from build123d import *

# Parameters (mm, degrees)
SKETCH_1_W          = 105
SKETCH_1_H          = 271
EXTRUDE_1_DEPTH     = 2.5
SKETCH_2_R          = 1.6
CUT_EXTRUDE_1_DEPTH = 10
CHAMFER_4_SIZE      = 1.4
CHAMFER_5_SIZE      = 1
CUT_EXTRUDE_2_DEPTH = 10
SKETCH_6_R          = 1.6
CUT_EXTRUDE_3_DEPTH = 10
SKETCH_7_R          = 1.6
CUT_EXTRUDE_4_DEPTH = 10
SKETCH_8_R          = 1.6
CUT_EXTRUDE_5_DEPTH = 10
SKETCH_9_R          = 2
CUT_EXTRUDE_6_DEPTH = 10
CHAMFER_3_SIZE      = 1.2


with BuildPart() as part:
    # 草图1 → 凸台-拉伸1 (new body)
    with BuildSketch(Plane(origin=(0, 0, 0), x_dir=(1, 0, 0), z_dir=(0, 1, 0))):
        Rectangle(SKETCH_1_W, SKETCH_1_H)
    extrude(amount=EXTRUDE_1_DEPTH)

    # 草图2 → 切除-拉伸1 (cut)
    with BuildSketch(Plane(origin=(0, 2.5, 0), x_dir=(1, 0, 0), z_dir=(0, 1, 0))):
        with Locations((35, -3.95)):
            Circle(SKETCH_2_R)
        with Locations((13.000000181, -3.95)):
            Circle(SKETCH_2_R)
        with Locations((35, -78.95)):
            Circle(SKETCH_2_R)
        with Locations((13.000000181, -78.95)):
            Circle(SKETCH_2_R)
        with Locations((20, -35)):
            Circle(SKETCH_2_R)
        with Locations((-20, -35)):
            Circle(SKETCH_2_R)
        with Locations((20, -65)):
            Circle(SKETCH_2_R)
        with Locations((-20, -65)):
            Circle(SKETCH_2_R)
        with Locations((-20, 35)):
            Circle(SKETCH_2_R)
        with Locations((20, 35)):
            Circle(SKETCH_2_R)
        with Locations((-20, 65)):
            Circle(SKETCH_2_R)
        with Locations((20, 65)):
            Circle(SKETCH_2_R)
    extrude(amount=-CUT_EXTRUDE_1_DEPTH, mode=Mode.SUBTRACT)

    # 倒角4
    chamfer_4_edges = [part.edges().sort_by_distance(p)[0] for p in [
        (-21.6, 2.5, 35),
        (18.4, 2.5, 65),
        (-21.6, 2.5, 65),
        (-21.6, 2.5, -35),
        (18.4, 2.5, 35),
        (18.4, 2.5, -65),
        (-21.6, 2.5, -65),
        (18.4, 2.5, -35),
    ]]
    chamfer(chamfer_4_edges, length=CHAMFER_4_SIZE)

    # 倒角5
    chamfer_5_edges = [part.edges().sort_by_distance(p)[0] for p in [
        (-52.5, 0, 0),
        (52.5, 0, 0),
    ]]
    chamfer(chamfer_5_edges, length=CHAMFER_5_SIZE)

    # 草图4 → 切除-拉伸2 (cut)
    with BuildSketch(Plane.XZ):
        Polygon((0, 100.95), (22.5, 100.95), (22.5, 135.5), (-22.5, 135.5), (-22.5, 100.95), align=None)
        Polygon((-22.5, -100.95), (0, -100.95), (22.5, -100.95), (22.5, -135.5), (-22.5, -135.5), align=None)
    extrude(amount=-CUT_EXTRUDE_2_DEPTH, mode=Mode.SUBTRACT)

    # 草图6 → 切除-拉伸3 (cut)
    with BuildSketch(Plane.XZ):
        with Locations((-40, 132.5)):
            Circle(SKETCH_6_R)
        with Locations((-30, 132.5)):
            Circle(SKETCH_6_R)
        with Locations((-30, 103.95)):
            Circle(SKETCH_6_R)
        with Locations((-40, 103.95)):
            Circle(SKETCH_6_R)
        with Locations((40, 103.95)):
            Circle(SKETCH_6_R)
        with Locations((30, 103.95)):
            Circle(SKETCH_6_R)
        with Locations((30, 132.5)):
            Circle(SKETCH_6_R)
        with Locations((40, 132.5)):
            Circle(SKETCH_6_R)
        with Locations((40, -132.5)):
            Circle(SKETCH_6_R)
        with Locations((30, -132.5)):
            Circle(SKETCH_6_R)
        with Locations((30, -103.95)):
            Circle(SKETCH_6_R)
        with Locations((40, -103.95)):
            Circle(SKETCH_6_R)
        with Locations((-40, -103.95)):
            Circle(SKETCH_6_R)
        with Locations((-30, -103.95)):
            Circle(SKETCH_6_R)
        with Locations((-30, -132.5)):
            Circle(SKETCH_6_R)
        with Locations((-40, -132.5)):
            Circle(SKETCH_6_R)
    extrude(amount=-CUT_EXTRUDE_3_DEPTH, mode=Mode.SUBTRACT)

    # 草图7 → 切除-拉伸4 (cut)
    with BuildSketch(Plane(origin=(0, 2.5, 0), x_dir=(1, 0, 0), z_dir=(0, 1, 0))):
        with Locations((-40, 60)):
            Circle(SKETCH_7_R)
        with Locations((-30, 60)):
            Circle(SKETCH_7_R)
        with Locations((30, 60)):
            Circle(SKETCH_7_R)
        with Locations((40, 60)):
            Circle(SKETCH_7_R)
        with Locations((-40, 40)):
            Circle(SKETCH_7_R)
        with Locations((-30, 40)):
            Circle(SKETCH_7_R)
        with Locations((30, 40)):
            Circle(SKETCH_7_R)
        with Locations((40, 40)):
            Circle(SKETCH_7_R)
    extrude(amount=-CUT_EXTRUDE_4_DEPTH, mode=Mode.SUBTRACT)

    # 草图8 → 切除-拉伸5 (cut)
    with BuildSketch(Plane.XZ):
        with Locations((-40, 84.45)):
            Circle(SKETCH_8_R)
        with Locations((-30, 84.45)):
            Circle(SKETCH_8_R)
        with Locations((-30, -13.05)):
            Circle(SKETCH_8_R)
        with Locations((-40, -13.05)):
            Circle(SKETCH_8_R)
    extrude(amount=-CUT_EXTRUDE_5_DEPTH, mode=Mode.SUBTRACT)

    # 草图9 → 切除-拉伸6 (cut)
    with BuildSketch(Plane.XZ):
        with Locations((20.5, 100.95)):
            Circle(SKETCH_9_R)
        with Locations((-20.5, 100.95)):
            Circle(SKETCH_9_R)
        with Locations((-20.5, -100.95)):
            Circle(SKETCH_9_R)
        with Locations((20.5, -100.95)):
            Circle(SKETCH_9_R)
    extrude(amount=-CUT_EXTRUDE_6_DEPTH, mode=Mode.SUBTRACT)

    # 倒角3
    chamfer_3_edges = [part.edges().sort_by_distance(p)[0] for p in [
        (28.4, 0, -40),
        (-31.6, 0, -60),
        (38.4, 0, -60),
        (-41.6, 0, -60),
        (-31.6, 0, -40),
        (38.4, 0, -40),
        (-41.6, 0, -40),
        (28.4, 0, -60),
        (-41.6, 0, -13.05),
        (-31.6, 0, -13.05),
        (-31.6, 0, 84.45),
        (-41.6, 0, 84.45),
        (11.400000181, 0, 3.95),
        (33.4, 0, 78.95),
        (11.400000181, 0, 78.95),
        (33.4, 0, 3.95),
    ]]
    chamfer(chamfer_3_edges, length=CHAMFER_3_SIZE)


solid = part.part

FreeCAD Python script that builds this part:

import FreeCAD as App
import Part
import Sketcher


def edges_at(feature, points):
    """Names of the edges that pass closest to the given points."""
    edges = feature.Shape.Edges
    near = lambda p: min(range(len(edges)), key=lambda i: edges[i].distToShape(Part.Vertex(*p))[0])
    return sorted({f"Edge{near(p) + 1}" for p in points})

doc = App.newDocument("Part")
body = doc.addObject("PartDesign::Body", "Body")

sketch1 = body.newObject("Sketcher::SketchObject", "Sketch")
sketch1.AttachmentSupport = (doc.getObject("XZ_Plane"), [""])
sketch1.MapMode = "FlatFace"
sketch1.addGeometry([
    Part.LineSegment(App.Vector(-52, -136, 0), App.Vector(-52, 136, 0)),
    Part.LineSegment(App.Vector(-52, 136, 0), App.Vector(52, 136, 0)),
    Part.LineSegment(App.Vector(52, 136, 0), App.Vector(52, -136, 0)),
    Part.LineSegment(App.Vector(52, -136, 0), App.Vector(-52, -136, 0)),
], False)
sketch1.addConstraint([
    Sketcher.Constraint("Coincident", 0, 2, 1, 1),
    Sketcher.Constraint("Coincident", 1, 2, 2, 1),
    Sketcher.Constraint("Coincident", 2, 2, 3, 1),
    Sketcher.Constraint("Coincident", 3, 2, 0, 1),
    Sketcher.Constraint("Vertical", 0),
    Sketcher.Constraint("Horizontal", 1),
    Sketcher.Constraint("Vertical", 2),
    Sketcher.Constraint("Horizontal", 3),
    Sketcher.Constraint("Symmetric", 0, 2, 2, 2, -1, 1),
    Sketcher.Constraint("DistanceX", 1, 1, 1, 2, 105.0),
    Sketcher.Constraint("DistanceY", 0, 1, 0, 2, 271.0),
])
pad1 = body.newObject("PartDesign::Pad", "Pad")
pad1.Profile = sketch1
pad1.Length = 2.5
pad1.Reversed = True

sketch2 = body.newObject("Sketcher::SketchObject", "Sketch001")
sketch2.AttachmentSupport = (doc.getObject("XZ_Plane"), [""])
sketch2.MapMode = "FlatFace"
sketch2.AttachmentOffset = App.Placement(App.Vector(0, 0, -2.5), App.Rotation())
sketch2.addGeometry([
    Part.Circle(App.Vector(35, 4, 0), App.Vector(0, 0, 1), 1.6),
    Part.Circle(App.Vector(13, 4, 0), App.Vector(0, 0, 1), 1.6),
    Part.Circle(App.Vector(35, 79, 0), App.Vector(0, 0, 1), 1.6),
    Part.Circle(App.Vector(13, 79, 0), App.Vector(0, 0, 1), 1.6),
    Part.Circle(App.Vector(20, 35, 0), App.Vector(0, 0, 1), 1.6),
    Part.Circle(App.Vector(-20, 35, 0), App.Vector(0, 0, 1), 1.6),
    Part.Circle(App.Vector(20, 65, 0), App.Vector(0, 0, 1), 1.6),
    Part.Circle(App.Vector(-20, 65, 0), App.Vector(0, 0, 1), 1.6),
    Part.Circle(App.Vector(-20, -35, 0), App.Vector(0, 0, 1), 1.6),
    Part.Circle(App.Vector(20, -35, 0), App.Vector(0, 0, 1), 1.6),
    Part.Circle(App.Vector(-20, -65, 0), App.Vector(0, 0, 1), 1.6),
    Part.Circle(App.Vector(20, -65, 0), App.Vector(0, 0, 1), 1.6),
], False)
sketch2.addConstraint([
    Sketcher.Constraint("Equal", 0, 1),
    Sketcher.Constraint("Equal", 1, 2),
    Sketcher.Constraint("Equal", 2, 3),
    Sketcher.Constraint("Equal", 3, 4),
    Sketcher.Constraint("Equal", 4, 5),
    Sketcher.Constraint("Equal", 5, 6),
    Sketcher.Constraint("Equal", 6, 7),
    Sketcher.Constraint("Equal", 7, 8),
    Sketcher.Constraint("Equal", 8, 9),
    Sketcher.Constraint("Equal", 9, 10),
    Sketcher.Constraint("Equal", 10, 11),
    Sketcher.Constraint("Symmetric", 4, 3, 8, 3, -1, 1),
    Sketcher.Constraint("Symmetric", 5, 3, 9, 3, -1, 1),
    Sketcher.Constraint("Symmetric", 6, 3, 10, 3, -1, 1),
    Sketcher.Constraint("Symmetric", 7, 3, 11, 3, -1, 1),
    Sketcher.Constraint("Symmetric", 4, 3, 5, 3, -2),
    Sketcher.Constraint("Symmetric", 6, 3, 7, 3, -2),
    Sketcher.Constraint("Horizontal", 0, 3, 1, 3),
    Sketcher.Constraint("Horizontal", 2, 3, 3, 3),
    Sketcher.Constraint("Vertical", 0, 3, 2, 3),
    Sketcher.Constraint("Vertical", 1, 3, 3, 3),
    Sketcher.Constraint("Vertical", 4, 3, 6, 3),
    Sketcher.Constraint("Diameter", 0, 3.2),
    Sketcher.Constraint("DistanceX", -1, 1, 0, 3, 35.0),
    Sketcher.Constraint("DistanceX", -1, 1, 1, 3, 13.0),
    Sketcher.Constraint("DistanceX", -1, 1, 4, 3, 20.0),
    Sketcher.Constraint("DistanceY", -1, 1, 4, 3, 35.0),
    Sketcher.Constraint("DistanceY", -1, 1, 6, 3, 65.0),
    Sketcher.Constraint("DistanceY", 0, 3, 2, 3, 75.0),
    Sketcher.Constraint("DistanceY", -1, 1, 0, 3, 3.95),
])
pocket1 = body.newObject("PartDesign::Pocket", "Pocket")
pocket1.Profile = sketch2
pocket1.Length = 10
pocket1.Reversed = True
doc.recompute()

chamfer = body.newObject("PartDesign::Chamfer", "Chamfer")
chamfer.Base = (pocket1, edges_at(pocket1, [
    (-21.6, 2.5, 35),
    (18.4, 2.5, 65),
    (-21.6, 2.5, 65),
    (-21.6, 2.5, -35),
    (18.4, 2.5, 35),
    (18.4, 2.5, -65),
    (-21.6, 2.5, -65),
    (18.4, 2.5, -35),
]))
chamfer.Size = 1.4
doc.recompute()

chamfer2 = body.newObject("PartDesign::Chamfer", "Chamfer001")
chamfer2.Base = (chamfer, edges_at(chamfer, [(-52.5, 0, 0), (52.5, 0, 0)]))
chamfer2.Size = 1

sketch3 = body.newObject("Sketcher::SketchObject", "Sketch002")
sketch3.AttachmentSupport = (doc.getObject("XZ_Plane"), [""])
sketch3.MapMode = "FlatFace"
sketch3.addGeometry([
    Part.LineSegment(App.Vector(22, 101, 0), App.Vector(22, 136, 0)),
    Part.LineSegment(App.Vector(22, 136, 0), App.Vector(-22, 136, 0)),
    Part.LineSegment(App.Vector(-22, 136, 0), App.Vector(-22, 101, 0)),
    Part.LineSegment(App.Vector(-22, 101, 0), App.Vector(22, 101, 0)),
    Part.LineSegment(App.Vector(22, -101, 0), App.Vector(-22, -101, 0)),
    Part.LineSegment(App.Vector(-22, -101, 0), App.Vector(-22, -136, 0)),
    Part.LineSegment(App.Vector(-22, -136, 0), App.Vector(22, -136, 0)),
    Part.LineSegment(App.Vector(22, -136, 0), App.Vector(22, -101, 0)),
], False)
sketch3.addConstraint([
    Sketcher.Constraint("Coincident", 0, 2, 1, 1),
    Sketcher.Constraint("Coincident", 1, 2, 2, 1),
    Sketcher.Constraint("Coincident", 2, 2, 3, 1),
    Sketcher.Constraint("Coincident", 3, 2, 0, 1),
    Sketcher.Constraint("Coincident", 4, 2, 5, 1),
    Sketcher.Constraint("Coincident", 5, 2, 6, 1),
    Sketcher.Constraint("Coincident", 6, 2, 7, 1),
    Sketcher.Constraint("Coincident", 7, 2, 4, 1),
    Sketcher.Constraint("Vertical", 0),
    Sketcher.Constraint("Horizontal", 1),
    Sketcher.Constraint("Vertical", 2),
    Sketcher.Constraint("Horizontal", 3),
    Sketcher.Constraint("Horizontal", 4),
    Sketcher.Constraint("Vertical", 5),
    Sketcher.Constraint("Horizontal", 6),
    Sketcher.Constraint("Vertical", 7),
    Sketcher.Constraint("Symmetric", 3, 2, 4, 2, -1, 1),
    Sketcher.Constraint("Symmetric", 1, 2, 6, 2, -1, 1),
    Sketcher.Constraint("Vertical", 2, 2, 4, 2),
    Sketcher.Constraint("DistanceX", 1, 2, 1, 1, 45.0),
    Sketcher.Constraint("DistanceY", 5, 2, 1, 2, 271.0),
    Sketcher.Constraint("DistanceY", 0, 1, 0, 2, 34.55),
])
pocket2 = body.newObject("PartDesign::Pocket", "Pocket001")
pocket2.Profile = sketch3
pocket2.Length = 10

sketch4 = body.newObject("Sketcher::SketchObject", "Sketch003")
sketch4.AttachmentSupport = (doc.getObject("XZ_Plane"), [""])
sketch4.MapMode = "FlatFace"
sketch4.addGeometry([
    Part.Circle(App.Vector(-40, 132.5, 0), App.Vector(0, 0, 1), 1.6),
    Part.Circle(App.Vector(-30, 132.5, 0), App.Vector(0, 0, 1), 1.6),
    Part.Circle(App.Vector(-30, 104, 0), App.Vector(0, 0, 1), 1.6),
    Part.Circle(App.Vector(-40, 104, 0), App.Vector(0, 0, 1), 1.6),
    Part.Circle(App.Vector(40, 104, 0), App.Vector(0, 0, 1), 1.6),
    Part.Circle(App.Vector(30, 104, 0), App.Vector(0, 0, 1), 1.6),
    Part.Circle(App.Vector(30, 132.5, 0), App.Vector(0, 0, 1), 1.6),
    Part.Circle(App.Vector(40, 132.5, 0), App.Vector(0, 0, 1), 1.6),
    Part.Circle(App.Vector(40, -132.5, 0), App.Vector(0, 0, 1), 1.6),
    Part.Circle(App.Vector(30, -132.5, 0), App.Vector(0, 0, 1), 1.6),
    Part.Circle(App.Vector(30, -104, 0), App.Vector(0, 0, 1), 1.6),
    Part.Circle(App.Vector(40, -104, 0), App.Vector(0, 0, 1), 1.6),
    Part.Circle(App.Vector(-40, -104, 0), App.Vector(0, 0, 1), 1.6),
    Part.Circle(App.Vector(-30, -104, 0), App.Vector(0, 0, 1), 1.6),
    Part.Circle(App.Vector(-30, -132.5, 0), App.Vector(0, 0, 1), 1.6),
    Part.Circle(App.Vector(-40, -132.5, 0), App.Vector(0, 0, 1), 1.6),
], False)
sketch4.addConstraint([
    Sketcher.Constraint("Equal", 0, 1),
    Sketcher.Constraint("Equal", 1, 2),
    Sketcher.Constraint("Equal", 2, 3),
    Sketcher.Constraint("Equal", 3, 4),
    Sketcher.Constraint("Equal", 4, 5),
    Sketcher.Constraint("Equal", 5, 6),
    Sketcher.Constraint("Equal", 6, 7),
    Sketcher.Constraint("Equal", 7, 8),
    Sketcher.Constraint("Equal", 8, 9),
    Sketcher.Constraint("Equal", 9, 10),
    Sketcher.Constraint("Equal", 10, 11),
    Sketcher.Constraint("Equal", 11, 12),
    Sketcher.Constraint("Equal", 12, 13),
    Sketcher.Constraint("Equal", 13, 14),
    Sketcher.Constraint("Equal", 14, 15),
    Sketcher.Constraint("Symmetric", 0, 3, 8, 3, -1, 1),
    Sketcher.Constraint("Symmetric", 1, 3, 9, 3, -1, 1),
    Sketcher.Constraint("Symmetric", 2, 3, 10, 3, -1, 1),
    Sketcher.Constraint("Symmetric", 3, 3, 11, 3, -1, 1),
    Sketcher.Constraint("Symmetric", 4, 3, 12, 3, -1, 1),
    Sketcher.Constraint("Symmetric", 5, 3, 13, 3, -1, 1),
    Sketcher.Constraint("Symmetric", 6, 3, 14, 3, -1, 1),
    Sketcher.Constraint("Symmetric", 7, 3, 15, 3, -1, 1),
    Sketcher.Constraint("Symmetric", 3, 3, 4, 3, -2),
    Sketcher.Constraint("Symmetric", 2, 3, 5, 3, -2),
    Sketcher.Constraint("Symmetric", 1, 3, 6, 3, -2),
    Sketcher.Constraint("Symmetric", 0, 3, 7, 3, -2),
    Sketcher.Constraint("Horizontal", 0, 3, 1, 3),
    Sketcher.Constraint("Horizontal", 2, 3, 3, 3),
    Sketcher.Constraint("Vertical", 1, 3, 2, 3),
    Sketcher.Constraint("Vertical", 0, 3, 3, 3),
    Sketcher.Constraint("Diameter", 0, 3.2),
    Sketcher.Constraint("DistanceX", 0, 3, -1, 1, 40.0),
    Sketcher.Constraint("DistanceX", 1, 3, -1, 1, 30.0),
    Sketcher.Constraint("DistanceY", 8, 3, 7, 3, 265.0),
    Sketcher.Constraint("DistanceY", 10, 3, 5, 3, 207.9),
])
pocket3 = body.newObject("PartDesign::Pocket", "Pocket002")
pocket3.Profile = sketch4
pocket3.Length = 10

sketch5 = body.newObject("Sketcher::SketchObject", "Sketch004")
sketch5.AttachmentSupport = (doc.getObject("XZ_Plane"), [""])
sketch5.MapMode = "FlatFace"
sketch5.AttachmentOffset = App.Placement(App.Vector(0, 0, -2.5), App.Rotation())
sketch5.addGeometry([
    Part.Circle(App.Vector(-40, -60, 0), App.Vector(0, 0, 1), 1.6),
    Part.Circle(App.Vector(-30, -60, 0), App.Vector(0, 0, 1), 1.6),
    Part.Circle(App.Vector(30, -60, 0), App.Vector(0, 0, 1), 1.6),
    Part.Circle(App.Vector(40, -60, 0), App.Vector(0, 0, 1), 1.6),
    Part.Circle(App.Vector(-40, -40, 0), App.Vector(0, 0, 1), 1.6),
    Part.Circle(App.Vector(-30, -40, 0), App.Vector(0, 0, 1), 1.6),
    Part.Circle(App.Vector(30, -40, 0), App.Vector(0, 0, 1), 1.6),
    Part.Circle(App.Vector(40, -40, 0), App.Vector(0, 0, 1), 1.6),
], False)
sketch5.addConstraint([
    Sketcher.Constraint("Equal", 0, 1),
    Sketcher.Constraint("Equal", 1, 2),
    Sketcher.Constraint("Equal", 2, 3),
    Sketcher.Constraint("Equal", 3, 4),
    Sketcher.Constraint("Equal", 4, 5),
    Sketcher.Constraint("Equal", 5, 6),
    Sketcher.Constraint("Equal", 6, 7),
    Sketcher.Constraint("Symmetric", 1, 3, 2, 3, -2),
    Sketcher.Constraint("Symmetric", 0, 3, 3, 3, -2),
    Sketcher.Constraint("Symmetric", 5, 3, 6, 3, -2),
    Sketcher.Constraint("Symmetric", 4, 3, 7, 3, -2),
    Sketcher.Constraint("Horizontal", 0, 3, 1, 3),
    Sketcher.Constraint("Horizontal", 4, 3, 5, 3),
    Sketcher.Constraint("Vertical", 0, 3, 4, 3),
    Sketcher.Constraint("Vertical", 1, 3, 5, 3),
    Sketcher.Constraint("Diameter", 0, 3.2),
    Sketcher.Constraint("DistanceX", 0, 3, -1, 1, 40.0),
    Sketcher.Constraint("DistanceY", 0, 3, -1, 1, 60.0),
    Sketcher.Constraint("DistanceX", 1, 3, -1, 1, 30.0),
    Sketcher.Constraint("DistanceY", 4, 3, -1, 1, 40.0),
])
pocket4 = body.newObject("PartDesign::Pocket", "Pocket003")
pocket4.Profile = sketch5
pocket4.Length = 10
pocket4.Reversed = True

sketch6 = body.newObject("Sketcher::SketchObject", "Sketch005")
sketch6.AttachmentSupport = (doc.getObject("XZ_Plane"), [""])
sketch6.MapMode = "FlatFace"
sketch6.addGeometry([
    Part.Circle(App.Vector(-40, 84.5, 0), App.Vector(0, 0, 1), 1.6),
    Part.Circle(App.Vector(-30, 84.5, 0), App.Vector(0, 0, 1), 1.6),
    Part.Circle(App.Vector(-30, -13.1, 0), App.Vector(0, 0, 1), 1.6),
    Part.Circle(App.Vector(-40, -13.1, 0), App.Vector(0, 0, 1), 1.6),
], False)
sketch6.addConstraint([
    Sketcher.Constraint("Equal", 0, 1),
    Sketcher.Constraint("Equal", 1, 2),
    Sketcher.Constraint("Equal", 2, 3),
    Sketcher.Constraint("Horizontal", 0, 3, 1, 3),
    Sketcher.Constraint("Horizontal", 2, 3, 3, 3),
    Sketcher.Constraint("Vertical", 1, 3, 2, 3),
    Sketcher.Constraint("Vertical", 0, 3, 3, 3),
    Sketcher.Constraint("Diameter", 0, 3.2),
    Sketcher.Constraint("DistanceX", 0, 3, -1, 1, 40.0),
    Sketcher.Constraint("DistanceX", 1, 3, -1, 1, 30.0),
    Sketcher.Constraint("DistanceY", 2, 3, 1, 3, 97.5),
    Sketcher.Constraint("DistanceY", -1, 1, 0, 3, 84.45),
])
pocket5 = body.newObject("PartDesign::Pocket", "Pocket004")
pocket5.Profile = sketch6
pocket5.Length = 10

sketch7 = body.newObject("Sketcher::SketchObject", "Sketch006")
sketch7.AttachmentSupport = (doc.getObject("XZ_Plane"), [""])
sketch7.MapMode = "FlatFace"
sketch7.addGeometry([
    Part.Circle(App.Vector(20.5, 101, 0), App.Vector(0, 0, 1), 2),
    Part.Circle(App.Vector(-20.5, 101, 0), App.Vector(0, 0, 1), 2),
    Part.Circle(App.Vector(-20.5, -101, 0), App.Vector(0, 0, 1), 2),
    Part.Circle(App.Vector(20.5, -101, 0), App.Vector(0, 0, 1), 2),
], False)
sketch7.addConstraint([
    Sketcher.Constraint("Equal", 0, 1),
    Sketcher.Constraint("Equal", 1, 2),
    Sketcher.Constraint("Equal", 2, 3),
    Sketcher.Constraint("Symmetric", 0, 3, 2, 3, -1, 1),
    Sketcher.Constraint("Symmetric", 1, 3, 3, 3, -1, 1),
    Sketcher.Constraint("Symmetric", 0, 3, 1, 3, -2),
    Sketcher.Constraint("Diameter", 0, 4.0),
    Sketcher.Constraint("DistanceX", 1, 3, 0, 3, 41.0),
    Sketcher.Constraint("DistanceY", 2, 3, 1, 3, 201.9),
])
pocket6 = body.newObject("PartDesign::Pocket", "Pocket005")
pocket6.Profile = sketch7
pocket6.Length = 10
doc.recompute()

chamfer3 = body.newObject("PartDesign::Chamfer", "Chamfer002")
chamfer3.Base = (pocket6, edges_at(pocket6, [
    (28.4, 0, -40),
    (-31.6, 0, -60),
    (38.4, 0, -60),
    (-41.6, 0, -60),
    (-31.6, 0, -40),
    (38.4, 0, -40),
    (-41.6, 0, -40),
    (28.4, 0, -60),
    (-41.6, 0, -13.05),
    (-31.6, 0, -13.05),
    (-31.6, 0, 84.45),
    (-41.6, 0, 84.45),
    (11.4, 0, 3.95),
    (33.4, 0, 78.95),
    (11.4, 0, 78.95),
    (33.4, 0, 3.95),
]))
chamfer3.Size = 1.2

doc.recompute()
